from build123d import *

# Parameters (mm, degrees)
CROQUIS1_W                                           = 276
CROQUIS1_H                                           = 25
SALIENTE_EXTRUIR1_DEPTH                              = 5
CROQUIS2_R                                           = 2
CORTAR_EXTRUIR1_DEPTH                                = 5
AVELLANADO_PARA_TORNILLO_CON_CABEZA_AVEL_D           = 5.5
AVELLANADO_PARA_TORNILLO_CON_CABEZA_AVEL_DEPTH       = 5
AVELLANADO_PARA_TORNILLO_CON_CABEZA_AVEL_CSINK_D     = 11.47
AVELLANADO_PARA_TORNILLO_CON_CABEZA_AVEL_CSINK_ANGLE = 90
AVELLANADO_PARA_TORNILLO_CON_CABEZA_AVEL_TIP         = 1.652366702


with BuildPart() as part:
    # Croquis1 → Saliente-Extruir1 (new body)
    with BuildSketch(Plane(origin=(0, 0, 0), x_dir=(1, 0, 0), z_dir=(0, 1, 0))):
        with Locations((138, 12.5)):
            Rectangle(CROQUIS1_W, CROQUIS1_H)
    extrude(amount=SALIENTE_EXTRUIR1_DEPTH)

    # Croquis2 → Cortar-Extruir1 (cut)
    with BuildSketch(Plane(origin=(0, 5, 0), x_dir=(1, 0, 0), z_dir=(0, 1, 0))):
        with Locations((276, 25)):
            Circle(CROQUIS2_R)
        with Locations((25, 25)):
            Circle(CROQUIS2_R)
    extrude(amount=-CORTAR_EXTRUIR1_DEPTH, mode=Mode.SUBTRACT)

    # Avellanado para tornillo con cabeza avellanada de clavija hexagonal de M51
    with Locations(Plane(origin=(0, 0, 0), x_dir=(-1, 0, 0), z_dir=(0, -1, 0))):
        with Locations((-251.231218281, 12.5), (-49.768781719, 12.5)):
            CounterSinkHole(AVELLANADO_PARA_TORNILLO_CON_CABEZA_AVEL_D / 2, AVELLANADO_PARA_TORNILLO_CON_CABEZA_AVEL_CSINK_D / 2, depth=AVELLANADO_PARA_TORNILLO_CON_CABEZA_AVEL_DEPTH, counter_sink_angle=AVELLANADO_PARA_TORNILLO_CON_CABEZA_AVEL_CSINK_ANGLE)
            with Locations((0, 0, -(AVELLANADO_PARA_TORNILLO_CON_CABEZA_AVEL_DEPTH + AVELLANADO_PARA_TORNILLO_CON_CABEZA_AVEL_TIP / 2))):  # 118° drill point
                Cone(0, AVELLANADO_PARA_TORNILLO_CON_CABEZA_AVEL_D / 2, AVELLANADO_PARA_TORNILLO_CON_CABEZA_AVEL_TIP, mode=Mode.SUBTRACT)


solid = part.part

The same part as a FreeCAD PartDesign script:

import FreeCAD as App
import Part
import Sketcher

V = App.Vector

doc = App.newDocument("Part")
body = doc.addObject("PartDesign::Body", "Body")

# Sketch on XZ plane
sketch1 = body.newObject("Sketcher::SketchObject", "Sketch")
sketch1.AttachmentSupport = (doc.getObject("XZ_Plane"), [""])
sketch1.MapMode = "FlatFace"
sketch1.addGeometry([
    Part.LineSegment(V(0, -25, 0), V(0, 0, 0)),
    Part.LineSegment(V(0, 0, 0), V(276, 0, 0)),
    Part.LineSegment(V(276, 0, 0), V(276, -25, 0)),
    Part.LineSegment(V(276, -25, 0), V(0, -25, 0)),
], False)
sketch1.addConstraint([
    Sketcher.Constraint("Coincident", 0, 2, 1, 1),
    Sketcher.Constraint("Coincident", 1, 2, 2, 1),
    Sketcher.Constraint("Coincident", 2, 2, 3, 1),
    Sketcher.Constraint("Coincident", 3, 2, 0, 1),
    Sketcher.Constraint("Vertical", 0),
    Sketcher.Constraint("Horizontal", 1),
    Sketcher.Constraint("Vertical", 2),
    Sketcher.Constraint("Horizontal", 3),
    Sketcher.Constraint("Coincident", 0, 2, -1, 1),
    Sketcher.Constraint("DistanceX", 1, 1, 1, 2, 276.0),
    Sketcher.Constraint("DistanceY", 0, 1, 0, 2, 25.0),
])
pad1 = body.newObject("PartDesign::Pad", "Pad")
pad1.Profile = sketch1
pad1.Length = 5
pad1.Reversed = True

# Sketch on XZ plane
sketch2 = body.newObject("Sketcher::SketchObject", "Sketch001")
sketch2.AttachmentSupport = (doc.getObject("XZ_Plane"), [""])
sketch2.MapMode = "FlatFace"
sketch2.AttachmentOffset = App.Placement(V(0, 0, -5), App.Rotation())
sketch2.addGeometry([
    Part.Circle(V(276, -25, 0), V(0, 0, 1), 2),
    Part.Circle(V(25, -25, 0), V(0, 0, 1), 2),
], False)
sketch2.addConstraint([
    Sketcher.Constraint("Equal", 0, 1),
    Sketcher.Constraint("Horizontal", 0, 3, 1, 3),
    Sketcher.Constraint("Diameter", 0, 4.0),
    Sketcher.Constraint("DistanceX", -1, 1, 0, 3, 276.0),
    Sketcher.Constraint("DistanceY", 0, 3, -1, 1, 25.0),
    Sketcher.Constraint("DistanceX", -1, 1, 1, 3, 25.0),
])
pocket1 = body.newObject("PartDesign::Pocket", "Pocket")
pocket1.Profile = sketch2
pocket1.Length = 5
pocket1.Reversed = True

# Sketch on XZ plane
sketch3 = body.newObject("Sketcher::SketchObject", "Sketch002")
sketch3.AttachmentSupport = (doc.getObject("XZ_Plane"), [""])
sketch3.MapMode = "FlatFace"
sketch3.addGeometry([
    Part.Circle(V(251.2, -12.5, 0), V(0, 0, 1), 2.8),
    Part.Circle(V(49.8, -12.5, 0), V(0, 0, 1), 2.8),
], False)
sketch3.addConstraint([
    Sketcher.Constraint("Equal", 0, 1),
    Sketcher.Constraint("Horizontal", 0, 3, 1, 3),
    Sketcher.Constraint("Diameter", 0, 5.5),
    Sketcher.Constraint("DistanceY", 0, 3, -1, 1, 12.5),
    Sketcher.Constraint("DistanceX", -1, 1, 0, 3, 251.231218),
    Sketcher.Constraint("DistanceX", -1, 1, 1, 3, 49.768782),
])
doc.recompute()
hole = body.newObject("PartDesign::Hole", "Hole")
hole.Profile = sketch3
hole.ThreadType = "None"
hole.Diameter = 5.5
hole.DepthType = "Dimension"
hole.Depth = 5
hole.DrillPoint = "Angled"
hole.DrillPointAngle = 118
hole.HoleCutType = "Countersink"
hole.HoleCutDiameter = 11.47
hole.HoleCutCountersinkAngle = 90

doc.recompute()
